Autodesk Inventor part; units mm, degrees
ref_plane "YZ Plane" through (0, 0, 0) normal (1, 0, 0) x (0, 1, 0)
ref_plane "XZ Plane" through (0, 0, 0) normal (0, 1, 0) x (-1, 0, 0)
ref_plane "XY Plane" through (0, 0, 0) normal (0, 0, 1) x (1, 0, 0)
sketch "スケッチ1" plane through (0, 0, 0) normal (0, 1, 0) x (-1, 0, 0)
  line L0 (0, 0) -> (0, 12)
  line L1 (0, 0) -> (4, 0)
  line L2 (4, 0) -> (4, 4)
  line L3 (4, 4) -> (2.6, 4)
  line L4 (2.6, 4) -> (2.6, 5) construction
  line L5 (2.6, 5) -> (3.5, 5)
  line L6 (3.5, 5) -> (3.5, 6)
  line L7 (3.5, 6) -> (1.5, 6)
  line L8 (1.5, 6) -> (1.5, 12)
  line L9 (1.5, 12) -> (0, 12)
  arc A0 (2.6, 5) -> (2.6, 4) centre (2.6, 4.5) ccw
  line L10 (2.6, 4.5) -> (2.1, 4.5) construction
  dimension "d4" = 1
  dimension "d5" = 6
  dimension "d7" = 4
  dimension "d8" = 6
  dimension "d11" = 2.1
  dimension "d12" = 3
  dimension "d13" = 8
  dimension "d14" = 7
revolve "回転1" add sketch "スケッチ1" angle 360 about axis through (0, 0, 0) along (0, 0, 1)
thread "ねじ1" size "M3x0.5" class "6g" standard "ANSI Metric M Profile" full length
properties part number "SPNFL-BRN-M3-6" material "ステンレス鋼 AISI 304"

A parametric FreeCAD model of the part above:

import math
import FreeCAD as App
import Part
import Sketcher
from FreeCAD import Vector
Q = App.Units.Quantity

doc = App.newDocument("Part")
body = doc.addObject("PartDesign::Body", "Body")

# Sketch on XZ plane
sketch1 = body.newObject("Sketcher::SketchObject", "Sketch")
sketch1.AttachmentSupport = (doc.getObject("XZ_Plane"), [""])
sketch1.MapMode = "FlatFace"
sketch1.addGeometry(Part.LineSegment(Vector(0, 12, 0), Vector(0, 0, 0)), False)
sketch1.addGeometry(Part.LineSegment(Vector(0, 0, 0), Vector(-4, 0, 0)), False)
sketch1.addGeometry(Part.LineSegment(Vector(-4, 0, 0), Vector(-4, 4, 0)), False)
sketch1.addGeometry(Part.LineSegment(Vector(-4, 4, 0), Vector(-2.6, 4, 0)), False)
sketch1.addGeometry(Part.ArcOfCircle(Part.Circle(Vector(-2.6, 4.5, 0), Vector(0, 0, 1), 0.5), math.radians(-90), math.radians(90)), False)
sketch1.addGeometry(Part.LineSegment(Vector(-2.6, 5, 0), Vector(-3.5, 5, 0)), False)
sketch1.addGeometry(Part.LineSegment(Vector(-3.5, 5, 0), Vector(-3.5, 6, 0)), False)
sketch1.addGeometry(Part.LineSegment(Vector(-3.5, 6, 0), Vector(-1.5, 6, 0)), False)
sketch1.addGeometry(Part.LineSegment(Vector(-1.5, 6, 0), Vector(-1.5, 12, 0)), False)
sketch1.addGeometry(Part.LineSegment(Vector(-1.5, 12, 0), Vector(0, 12, 0)), False)
sketch1.addConstraint(Sketcher.Constraint("Coincident", 0, 2, 1, 1))
sketch1.addConstraint(Sketcher.Constraint("Coincident", 1, 2, 2, 1))
sketch1.addConstraint(Sketcher.Constraint("Coincident", 2, 2, 3, 1))
sketch1.addConstraint(Sketcher.Constraint("Tangent", 3, 2, 4, 1))
sketch1.addConstraint(Sketcher.Constraint("Tangent", 4, 2, 5, 1))
sketch1.addConstraint(Sketcher.Constraint("Coincident", 5, 2, 6, 1))
sketch1.addConstraint(Sketcher.Constraint("Coincident", 6, 2, 7, 1))
sketch1.addConstraint(Sketcher.Constraint("Coincident", 7, 2, 8, 1))
sketch1.addConstraint(Sketcher.Constraint("Coincident", 8, 2, 9, 1))
sketch1.addConstraint(Sketcher.Constraint("Coincident", 9, 2, 0, 1))
sketch1.addConstraint(Sketcher.Constraint("Vertical", 0))
sketch1.addConstraint(Sketcher.Constraint("Horizontal", 1))
sketch1.addConstraint(Sketcher.Constraint("Vertical", 2))
sketch1.addConstraint(Sketcher.Constraint("Horizontal", 3))
sketch1.addConstraint(Sketcher.Constraint("Horizontal", 5))
sketch1.addConstraint(Sketcher.Constraint("Vertical", 6))
sketch1.addConstraint(Sketcher.Constraint("Horizontal", 7))
sketch1.addConstraint(Sketcher.Constraint("Vertical", 8))
sketch1.addConstraint(Sketcher.Constraint("Horizontal", 9))
sketch1.addConstraint(Sketcher.Constraint("Coincident", 0, 2, -1, 1))
sketch1.addConstraint(Sketcher.Constraint("Equal", 1, 2))
sketch1.addConstraint(Sketcher.Constraint("Radius", 4, Q("0.5 mm")))
sketch1.addConstraint(Sketcher.Constraint("DistanceX", 1, 2, 1, 1, Q("4 mm")))
sketch1.addConstraint(Sketcher.Constraint("DistanceY", 6, 1, 6, 2, Q("1 mm")))
sketch1.addConstraint(Sketcher.Constraint("DistanceY", 8, 1, 8, 2, Q("6 mm")))
sketch1.addConstraint(Sketcher.Constraint("DistanceX", 7, 1, 7, 2, Q("2 mm")))
sketch1.addConstraint(Sketcher.Constraint("DistanceX", 3, 1, 3, 2, Q("1.4 mm")))
sketch1.addConstraint(Sketcher.Constraint("DistanceX", 5, 2, 5, 1, Q("0.9 mm")))
revolution = body.newObject("PartDesign::Revolution", "Revolution")
revolution.Profile = sketch1
revolution.ReferenceAxis = (sketch1, ["V_Axis"])
revolution.Angle = 360

doc.recompute()
